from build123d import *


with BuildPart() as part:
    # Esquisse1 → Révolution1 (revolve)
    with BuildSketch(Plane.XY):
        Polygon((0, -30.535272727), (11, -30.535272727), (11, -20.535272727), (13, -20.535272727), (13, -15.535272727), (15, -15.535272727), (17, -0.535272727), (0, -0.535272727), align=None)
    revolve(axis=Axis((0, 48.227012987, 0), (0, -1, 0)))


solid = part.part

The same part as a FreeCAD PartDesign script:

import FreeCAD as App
import Part
import Sketcher
from FreeCAD import Vector
Q = App.Units.Quantity

doc = App.newDocument("Part")
params = doc.addObject("Spreadsheet::Sheet", "Params")
for row, (alias, value) in enumerate([
    ("sketch1_width", "11 mm"),
    ("sketch1_width2", "2 mm"),
    ("sketch1_width3", "17 mm"),
    ("sketch1_height", "10 mm"),
    ("sketch1_height2", "5 mm"),
    ("revolution_angle", "360 deg"),
], start=1):
    params.set(f"A{row}", alias)
    params.set(f"B{row}", "=" + value)
    params.setAlias(f"B{row}", alias)

body = doc.addObject("PartDesign::Body", "Body")

# Sketch on XY plane
sketch1 = body.newObject("Sketcher::SketchObject", "Sketch")
sketch1.AttachmentSupport = (doc.getObject("XY_Plane"), [""])
sketch1.MapMode = "FlatFace"
sketch1.addGeometry([
    Part.LineSegment(Vector(0, -30.5, 0), Vector(11, -30.5, 0)),  # 0
    Part.LineSegment(Vector(11, -30.5, 0), Vector(11, -20.5, 0)),  # 1
    Part.LineSegment(Vector(11, -20.5, 0), Vector(13, -20.5, 0)),  # 2
    Part.LineSegment(Vector(13, -20.5, 0), Vector(13, -15.5, 0)),  # 3
    Part.LineSegment(Vector(13, -15.5, 0), Vector(15, -15.5, 0)),  # 4
    Part.LineSegment(Vector(15, -15.5, 0), Vector(17, -0.5, 0)),  # 5
    Part.LineSegment(Vector(17, -0.5, 0), Vector(0, -0.5, 0)),  # 6
    Part.LineSegment(Vector(0, -0.5, 0), Vector(0, -30.5, 0)),  # 7
], False)
sketch1.addConstraint([
    Sketcher.Constraint("Coincident", 0, 2, 1, 1),
    Sketcher.Constraint("Coincident", 1, 2, 2, 1),
    Sketcher.Constraint("Coincident", 2, 2, 3, 1),
    Sketcher.Constraint("Coincident", 3, 2, 4, 1),
    Sketcher.Constraint("Coincident", 4, 2, 5, 1),
    Sketcher.Constraint("Coincident", 5, 2, 6, 1),
    Sketcher.Constraint("Coincident", 6, 2, 7, 1),
    Sketcher.Constraint("Coincident", 7, 2, 0, 1),
    Sketcher.Constraint("Horizontal", 0),
    Sketcher.Constraint("Vertical", 1),
    Sketcher.Constraint("Horizontal", 2),
    Sketcher.Constraint("Vertical", 3),
    Sketcher.Constraint("Horizontal", 4),
    Sketcher.Constraint("Horizontal", 6),
    Sketcher.Constraint("Vertical", 7),
    Sketcher.Constraint("PointOnObject", 6, 2, -2),
    Sketcher.Constraint("Equal", 2, 4),
    Sketcher.Constraint("DistanceX", 0, 1, 0, 2, Q("11 mm")),
    Sketcher.Constraint("DistanceX", 2, 1, 2, 2, Q("2 mm")),
    Sketcher.Constraint("DistanceX", 6, 2, 6, 1, Q("17 mm")),
    Sketcher.Constraint("DistanceY", 1, 1, 1, 2, Q("10 mm")),
    Sketcher.Constraint("DistanceY", 3, 1, 3, 2, Q("5 mm")),
    Sketcher.Constraint("DistanceY", 7, 2, 7, 1, Q("30 mm")),
    Sketcher.Constraint("DistanceY", 0, 2, -1, 1, Q("30.535273 mm")),
])
sketch1.setExpression("Constraints[17]", "Params.sketch1_width")
sketch1.setExpression("Constraints[18]", "Params.sketch1_width2")
sketch1.setExpression("Constraints[19]", "Params.sketch1_width3")
sketch1.setExpression("Constraints[20]", "Params.sketch1_height")
sketch1.setExpression("Constraints[21]", "Params.sketch1_height2")
revolution = body.newObject("PartDesign::Revolution", "Revolution")
revolution.Profile = sketch1
revolution.ReferenceAxis = (sketch1, ["V_Axis"])
revolution.setExpression("Angle", "Params.revolution_angle")

doc.recompute()
